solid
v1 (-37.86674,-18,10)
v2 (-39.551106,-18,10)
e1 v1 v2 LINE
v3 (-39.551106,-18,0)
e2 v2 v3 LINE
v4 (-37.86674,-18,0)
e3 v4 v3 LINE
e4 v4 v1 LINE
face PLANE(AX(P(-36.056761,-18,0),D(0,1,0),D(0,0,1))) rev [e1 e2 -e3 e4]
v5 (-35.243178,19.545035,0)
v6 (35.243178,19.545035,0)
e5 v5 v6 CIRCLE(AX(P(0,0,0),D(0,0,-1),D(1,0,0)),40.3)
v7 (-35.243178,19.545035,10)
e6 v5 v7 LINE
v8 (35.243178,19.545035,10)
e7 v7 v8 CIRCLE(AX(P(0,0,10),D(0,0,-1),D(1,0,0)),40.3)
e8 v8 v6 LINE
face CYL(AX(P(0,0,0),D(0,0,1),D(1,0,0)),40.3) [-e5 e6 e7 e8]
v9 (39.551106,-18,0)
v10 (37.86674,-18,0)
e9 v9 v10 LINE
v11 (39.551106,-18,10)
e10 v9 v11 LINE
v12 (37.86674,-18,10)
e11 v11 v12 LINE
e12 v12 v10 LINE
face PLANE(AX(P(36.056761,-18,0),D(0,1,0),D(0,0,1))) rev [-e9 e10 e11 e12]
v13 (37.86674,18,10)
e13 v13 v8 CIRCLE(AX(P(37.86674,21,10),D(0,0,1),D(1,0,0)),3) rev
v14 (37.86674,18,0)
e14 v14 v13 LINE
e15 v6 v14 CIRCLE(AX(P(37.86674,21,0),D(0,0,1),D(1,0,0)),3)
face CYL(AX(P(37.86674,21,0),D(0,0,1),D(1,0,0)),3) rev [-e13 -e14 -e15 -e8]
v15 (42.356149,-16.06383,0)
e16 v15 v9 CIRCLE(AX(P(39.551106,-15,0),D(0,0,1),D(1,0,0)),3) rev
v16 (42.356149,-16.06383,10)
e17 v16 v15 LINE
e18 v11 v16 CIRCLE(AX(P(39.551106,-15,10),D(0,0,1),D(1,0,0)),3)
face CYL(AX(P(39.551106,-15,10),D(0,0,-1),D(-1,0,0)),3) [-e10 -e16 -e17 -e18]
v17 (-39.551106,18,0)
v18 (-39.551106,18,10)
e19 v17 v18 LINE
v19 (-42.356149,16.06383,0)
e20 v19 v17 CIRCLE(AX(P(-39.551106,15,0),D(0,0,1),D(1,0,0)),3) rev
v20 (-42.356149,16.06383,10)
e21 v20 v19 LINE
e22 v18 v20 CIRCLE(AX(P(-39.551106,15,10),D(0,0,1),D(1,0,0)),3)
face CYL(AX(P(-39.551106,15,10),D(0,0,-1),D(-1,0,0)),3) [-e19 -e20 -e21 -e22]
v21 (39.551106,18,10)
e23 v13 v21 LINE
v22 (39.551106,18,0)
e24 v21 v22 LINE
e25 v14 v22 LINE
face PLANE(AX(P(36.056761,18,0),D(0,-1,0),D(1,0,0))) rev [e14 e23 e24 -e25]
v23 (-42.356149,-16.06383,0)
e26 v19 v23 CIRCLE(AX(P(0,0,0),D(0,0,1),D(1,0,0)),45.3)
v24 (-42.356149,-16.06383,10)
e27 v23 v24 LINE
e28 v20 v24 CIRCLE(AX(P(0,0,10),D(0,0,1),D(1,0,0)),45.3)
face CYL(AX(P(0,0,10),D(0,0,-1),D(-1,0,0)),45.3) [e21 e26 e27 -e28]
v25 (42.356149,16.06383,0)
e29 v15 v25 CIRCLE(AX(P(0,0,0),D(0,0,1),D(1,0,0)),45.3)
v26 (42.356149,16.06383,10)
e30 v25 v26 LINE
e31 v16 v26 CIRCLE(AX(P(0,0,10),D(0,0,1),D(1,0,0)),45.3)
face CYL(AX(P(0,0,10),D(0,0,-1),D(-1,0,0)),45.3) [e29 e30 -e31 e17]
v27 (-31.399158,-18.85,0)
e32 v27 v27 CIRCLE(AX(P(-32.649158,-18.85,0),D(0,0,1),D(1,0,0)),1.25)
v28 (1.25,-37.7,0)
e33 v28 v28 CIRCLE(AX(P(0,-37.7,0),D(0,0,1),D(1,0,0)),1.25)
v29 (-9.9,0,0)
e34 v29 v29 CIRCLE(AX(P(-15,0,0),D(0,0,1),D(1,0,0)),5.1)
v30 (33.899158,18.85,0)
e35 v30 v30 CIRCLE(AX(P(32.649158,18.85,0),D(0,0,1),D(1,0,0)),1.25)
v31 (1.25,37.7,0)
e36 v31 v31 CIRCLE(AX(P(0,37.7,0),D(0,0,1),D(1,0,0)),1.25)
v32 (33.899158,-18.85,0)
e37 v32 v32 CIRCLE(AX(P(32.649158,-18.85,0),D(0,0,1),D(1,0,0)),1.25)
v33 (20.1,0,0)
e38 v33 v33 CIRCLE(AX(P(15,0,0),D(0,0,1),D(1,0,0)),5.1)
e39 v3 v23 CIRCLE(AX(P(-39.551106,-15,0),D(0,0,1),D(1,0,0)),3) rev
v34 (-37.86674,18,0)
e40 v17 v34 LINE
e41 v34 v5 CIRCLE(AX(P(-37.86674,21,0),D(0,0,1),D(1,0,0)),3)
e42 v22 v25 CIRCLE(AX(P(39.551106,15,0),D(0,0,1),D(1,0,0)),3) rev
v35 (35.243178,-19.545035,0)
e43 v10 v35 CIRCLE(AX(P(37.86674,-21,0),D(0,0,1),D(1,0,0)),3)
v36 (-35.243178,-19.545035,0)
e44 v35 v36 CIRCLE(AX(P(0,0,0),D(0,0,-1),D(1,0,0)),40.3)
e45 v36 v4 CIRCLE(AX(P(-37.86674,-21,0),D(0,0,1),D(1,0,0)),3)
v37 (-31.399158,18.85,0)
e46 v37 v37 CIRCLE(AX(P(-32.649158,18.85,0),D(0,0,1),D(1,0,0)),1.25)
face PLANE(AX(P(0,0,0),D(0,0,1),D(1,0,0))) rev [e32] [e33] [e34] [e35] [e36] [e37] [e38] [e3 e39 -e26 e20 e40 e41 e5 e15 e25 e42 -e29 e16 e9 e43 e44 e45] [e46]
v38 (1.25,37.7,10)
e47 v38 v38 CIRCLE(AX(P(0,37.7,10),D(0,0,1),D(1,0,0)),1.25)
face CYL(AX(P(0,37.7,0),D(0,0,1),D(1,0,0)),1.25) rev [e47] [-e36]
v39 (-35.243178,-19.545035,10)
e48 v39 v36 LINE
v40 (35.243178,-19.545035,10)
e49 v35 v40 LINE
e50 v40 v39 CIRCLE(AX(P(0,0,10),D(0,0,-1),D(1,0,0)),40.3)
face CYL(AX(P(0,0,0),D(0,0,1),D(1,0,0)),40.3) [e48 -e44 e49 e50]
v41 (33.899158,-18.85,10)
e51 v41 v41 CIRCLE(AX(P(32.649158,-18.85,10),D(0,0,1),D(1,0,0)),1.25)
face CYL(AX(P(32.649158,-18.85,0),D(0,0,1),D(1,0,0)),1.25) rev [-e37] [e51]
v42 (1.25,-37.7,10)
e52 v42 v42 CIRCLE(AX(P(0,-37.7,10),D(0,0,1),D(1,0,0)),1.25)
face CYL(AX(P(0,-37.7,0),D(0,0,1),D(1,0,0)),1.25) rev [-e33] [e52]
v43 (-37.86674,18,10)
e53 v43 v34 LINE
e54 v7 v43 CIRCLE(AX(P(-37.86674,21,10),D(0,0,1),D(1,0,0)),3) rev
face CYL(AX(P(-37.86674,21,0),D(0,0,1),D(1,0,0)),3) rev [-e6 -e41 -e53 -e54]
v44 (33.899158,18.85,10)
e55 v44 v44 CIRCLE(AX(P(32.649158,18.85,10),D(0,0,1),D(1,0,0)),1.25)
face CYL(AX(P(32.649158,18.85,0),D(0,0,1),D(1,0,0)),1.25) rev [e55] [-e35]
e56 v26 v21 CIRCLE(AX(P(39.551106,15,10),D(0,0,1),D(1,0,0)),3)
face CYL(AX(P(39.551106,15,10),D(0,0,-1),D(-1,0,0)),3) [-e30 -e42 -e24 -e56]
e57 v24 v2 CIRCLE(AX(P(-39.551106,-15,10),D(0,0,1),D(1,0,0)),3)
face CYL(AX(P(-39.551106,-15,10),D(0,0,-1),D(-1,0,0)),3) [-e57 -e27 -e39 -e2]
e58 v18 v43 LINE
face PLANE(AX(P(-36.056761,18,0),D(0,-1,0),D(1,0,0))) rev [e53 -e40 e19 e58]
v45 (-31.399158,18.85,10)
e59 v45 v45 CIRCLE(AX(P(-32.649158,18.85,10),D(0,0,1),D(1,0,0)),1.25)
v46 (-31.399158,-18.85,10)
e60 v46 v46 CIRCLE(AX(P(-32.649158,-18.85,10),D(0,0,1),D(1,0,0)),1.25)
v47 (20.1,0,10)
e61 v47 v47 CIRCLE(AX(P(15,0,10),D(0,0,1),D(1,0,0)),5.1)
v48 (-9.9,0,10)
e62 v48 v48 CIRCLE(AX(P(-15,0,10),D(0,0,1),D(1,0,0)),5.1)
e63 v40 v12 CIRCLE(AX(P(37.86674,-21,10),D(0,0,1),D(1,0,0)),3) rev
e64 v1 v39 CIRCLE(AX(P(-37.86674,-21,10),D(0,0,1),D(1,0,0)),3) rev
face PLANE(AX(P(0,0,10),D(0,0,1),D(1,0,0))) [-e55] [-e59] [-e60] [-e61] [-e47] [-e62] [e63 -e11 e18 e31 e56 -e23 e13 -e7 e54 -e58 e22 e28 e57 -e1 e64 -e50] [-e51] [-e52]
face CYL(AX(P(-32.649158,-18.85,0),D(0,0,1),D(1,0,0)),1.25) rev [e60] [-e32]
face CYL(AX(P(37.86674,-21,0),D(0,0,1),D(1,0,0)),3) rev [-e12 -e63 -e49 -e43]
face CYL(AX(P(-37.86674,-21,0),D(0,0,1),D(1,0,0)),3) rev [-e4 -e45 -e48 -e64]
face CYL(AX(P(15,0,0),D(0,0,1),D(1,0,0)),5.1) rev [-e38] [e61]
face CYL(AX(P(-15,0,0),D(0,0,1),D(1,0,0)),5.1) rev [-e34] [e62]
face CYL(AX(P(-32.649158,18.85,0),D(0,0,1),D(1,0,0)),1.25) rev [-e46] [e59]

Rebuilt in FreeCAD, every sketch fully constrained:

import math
import FreeCAD as App
import Part
import Sketcher

V = App.Vector
Q = App.Units.Quantity


def edges_at(feature, points):
    """Names of the edges that pass closest to the given points."""
    edges = feature.Shape.Edges
    near = lambda p: min(range(len(edges)), key=lambda i: edges[i].distToShape(Part.Vertex(*p))[0])
    return sorted({f"Edge{near(p) + 1}" for p in points})

doc = App.newDocument("Part")
body = doc.addObject("PartDesign::Body", "Body")

sketch1 = doc.addObject("Sketcher::SketchObject", "Sketch")
body.addObject(sketch1)
sketch1.AttachmentSupport = (doc.XY_Plane, [""])
sketch1.MapMode = "FlatFace"
sketch1.addGeometry(Part.Circle(V(0, 0, 0), V(0, 0, 1), 45), False)
sketch1.addConstraint([
    Sketcher.Constraint("Coincident", 0, 3, -1, 1),
    Sketcher.Constraint("Diameter", 0, Q("90.6 mm")),
])
pad1 = doc.addObject("PartDesign::Pad", "Pad")
body.addObject(pad1)
pad1.Profile = sketch1
pad1.Length = 10

sketch2 = doc.addObject("Sketcher::SketchObject", "Sketch001")
body.addObject(sketch2)
sketch2.AttachmentSupport = (doc.XY_Plane, [""])
sketch2.MapMode = "FlatFace"
sketch2.AttachmentOffset = App.Placement(V(0, 0, 10), App.Rotation())
sketch2.addGeometry([
    Part.LineSegment(V(-42, 18, 0), V(-36, 18, 0)),
    Part.ArcOfCircle(Part.Circle(V(0, 0, 0), V(0, 0, 1), 40), math.radians(27), math.radians(153)),
    Part.LineSegment(V(36, 18, 0), V(42, 18, 0)),
    Part.ArcOfCircle(Part.Circle(V(0, 0, 0), V(0, 0, 1), 45), math.radians(23), math.radians(157)),
    Part.LineSegment(V(-36, -18, 0), V(-42, -18, 0)),
    Part.ArcOfCircle(Part.Circle(V(0, 0, 0), V(0, 0, 1), 45), math.radians(-157), math.radians(-23)),
    Part.LineSegment(V(42, -18, 0), V(36, -18, 0)),
    Part.ArcOfCircle(Part.Circle(V(0, 0, 0), V(0, 0, 1), 40), math.radians(-153), math.radians(-27)),
], False)
sketch2.addConstraint([
    Sketcher.Constraint("Coincident", 0, 2, 1, 2),
    Sketcher.Constraint("Coincident", 1, 1, 2, 1),
    Sketcher.Constraint("Coincident", 2, 2, 3, 1),
    Sketcher.Constraint("Coincident", 3, 2, 0, 1),
    Sketcher.Constraint("Coincident", 4, 2, 5, 1),
    Sketcher.Constraint("Coincident", 5, 2, 6, 1),
    Sketcher.Constraint("Coincident", 6, 2, 7, 2),
    Sketcher.Constraint("Coincident", 7, 1, 4, 1),
    Sketcher.Constraint("Horizontal", 0),
    Sketcher.Constraint("Horizontal", 2),
    Sketcher.Constraint("Horizontal", 4),
    Sketcher.Constraint("Horizontal", 6),
    Sketcher.Constraint("Coincident", 1, 3, -1, 1),
    Sketcher.Constraint("Coincident", 3, 3, -1, 1),
    Sketcher.Constraint("Coincident", 5, 3, -1, 1),
    Sketcher.Constraint("Coincident", 7, 3, -1, 1),
    Sketcher.Constraint("Equal", 1, 7),
    Sketcher.Constraint("Horizontal", 0, 2, 1, 1),
    Sketcher.Constraint("Horizontal", 4, 2, 5, 2),
    Sketcher.Constraint("Vertical", 1, 1, 6, 2),
    Sketcher.Constraint("Radius", 1, Q("40.3 mm")),
    Sketcher.Constraint("Radius", 3, Q("45.3 mm")),
    Sketcher.Constraint("DistanceY", -1, 1, 0, 2, Q("18 mm")),
    Sketcher.Constraint("Radius", 5, Q("45.450838 mm")),
])
pocket1 = doc.addObject("PartDesign::Pocket", "Pocket")
body.addObject(pocket1)
pocket1.Profile = sketch2
pocket1.Type = "ThroughAll"
doc.recompute()

fillet = doc.addObject("PartDesign::Fillet", "Fillet")
body.addObject(fillet)
fillet.Base = (pocket1, edges_at(pocket1, [
    (36.057, 18, 5),
    (-36.057, 18, 5),
    (-41.57, 18, 5),
    (41.57, 18, 5),
    (41.57, -18, 5),
    (36.057, -18, 5),
    (-41.57, -18, 5),
    (-36.057, -18, 5),
]))
fillet.Radius = 3

sketch3 = doc.addObject("Sketcher::SketchObject", "Sketch002")
body.addObject(sketch3)
sketch3.AttachmentSupport = (doc.XY_Plane, [""])
sketch3.MapMode = "FlatFace"
sketch3.AttachmentOffset = App.Placement(V(0, 0, 10), App.Rotation())
sketch3.addGeometry([
    Part.Circle(V(0, 37.7, 0), V(0, 0, 1), 1.2),
    Part.Circle(V(32.6, 18.9, 0), V(0, 0, 1), 1.2),
    Part.Circle(V(32.6, -18.9, 0), V(0, 0, 1), 1.2),
    Part.Circle(V(0, -37.7, 0), V(0, 0, 1), 1.2),
    Part.Circle(V(-32.6, -18.9, 0), V(0, 0, 1), 1.2),
    Part.Circle(V(-32.6, 18.9, 0), V(0, 0, 1), 1.2),
], False)
sketch3.addConstraint([
    Sketcher.Constraint("Equal", 0, 1),
    Sketcher.Constraint("Equal", 1, 2),
    Sketcher.Constraint("Equal", 2, 3),
    Sketcher.Constraint("Equal", 3, 4),
    Sketcher.Constraint("Equal", 4, 5),
    Sketcher.Constraint("Symmetric", 0, 3, 3, 3, -1, 1),
    Sketcher.Constraint("Symmetric", 1, 3, 4, 3, -1, 1),
    Sketcher.Constraint("Symmetric", 2, 3, 5, 3, -1, 1),
    Sketcher.Constraint("Symmetric", 2, 3, 4, 3, -2),
    Sketcher.Constraint("PointOnObject", 0, 3, -2),
    Sketcher.Constraint("Diameter", 0, Q("2.5 mm")),
    Sketcher.Constraint("DistanceY", -1, 1, 0, 3, Q("37.7 mm")),
    Sketcher.Constraint("DistanceY", 2, 3, 1, 3, Q("37.7 mm")),
    Sketcher.Constraint("DistanceX", -1, 1, 1, 3, Q("32.649158 mm")),
])
pocket2 = doc.addObject("PartDesign::Pocket", "Pocket001")
body.addObject(pocket2)
pocket2.Profile = sketch3
pocket2.Type = "ThroughAll"

sketch4 = doc.addObject("Sketcher::SketchObject", "Sketch003")
body.addObject(sketch4)
sketch4.AttachmentSupport = (doc.XY_Plane, [""])
sketch4.MapMode = "FlatFace"
sketch4.AttachmentOffset = App.Placement(V(0, 0, 10), App.Rotation())
sketch4.addGeometry([
    Part.Circle(V(-15, 0, 0), V(0, 0, 1), 5),
    Part.Circle(V(15, 0, 0), V(0, 0, 1), 5),
], False)
sketch4.addConstraint([
    Sketcher.Constraint("Equal", 0, 1),
    Sketcher.Constraint("Symmetric", 0, 3, 1, 3, -1, 1),
    Sketcher.Constraint("PointOnObject", 0, 3, -1),
    Sketcher.Constraint("Diameter", 0, Q("10.2 mm")),
    Sketcher.Constraint("DistanceX", 0, 3, -1, 1, Q("15 mm")),
])
pocket3 = doc.addObject("PartDesign::Pocket", "Pocket002")
body.addObject(pocket3)
pocket3.Profile = sketch4
pocket3.Type = "ThroughAll"

doc.recompute()
